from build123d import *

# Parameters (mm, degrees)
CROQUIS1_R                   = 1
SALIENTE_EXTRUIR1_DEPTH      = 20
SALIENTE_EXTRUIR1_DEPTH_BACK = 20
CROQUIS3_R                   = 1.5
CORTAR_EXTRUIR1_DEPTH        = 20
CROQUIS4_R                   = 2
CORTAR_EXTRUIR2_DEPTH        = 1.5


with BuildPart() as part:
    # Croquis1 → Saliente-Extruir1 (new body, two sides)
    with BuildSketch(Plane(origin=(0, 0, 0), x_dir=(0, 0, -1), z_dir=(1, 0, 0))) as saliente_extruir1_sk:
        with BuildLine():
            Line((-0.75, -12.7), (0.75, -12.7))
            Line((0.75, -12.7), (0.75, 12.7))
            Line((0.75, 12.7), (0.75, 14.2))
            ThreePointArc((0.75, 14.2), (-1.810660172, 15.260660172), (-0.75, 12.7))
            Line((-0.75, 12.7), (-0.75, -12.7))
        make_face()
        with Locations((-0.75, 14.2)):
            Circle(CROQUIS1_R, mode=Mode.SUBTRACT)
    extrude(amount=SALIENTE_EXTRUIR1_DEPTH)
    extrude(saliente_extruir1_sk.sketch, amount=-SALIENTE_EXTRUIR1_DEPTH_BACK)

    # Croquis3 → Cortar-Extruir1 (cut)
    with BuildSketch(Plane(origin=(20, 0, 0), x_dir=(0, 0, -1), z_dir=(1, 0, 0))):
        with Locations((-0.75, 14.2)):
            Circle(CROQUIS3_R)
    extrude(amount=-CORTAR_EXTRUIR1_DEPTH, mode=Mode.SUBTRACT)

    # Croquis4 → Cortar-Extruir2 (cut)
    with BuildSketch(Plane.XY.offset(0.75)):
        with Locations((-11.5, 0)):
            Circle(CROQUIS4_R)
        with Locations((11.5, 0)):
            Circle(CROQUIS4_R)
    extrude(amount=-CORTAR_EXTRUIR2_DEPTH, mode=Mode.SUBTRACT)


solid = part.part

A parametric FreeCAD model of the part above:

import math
import FreeCAD as App
import Part
import Sketcher

V = App.Vector
Q = App.Units.Quantity

doc = App.newDocument("Part")
body = doc.addObject("PartDesign::Body", "Body")

# Sketch on YZ plane
sketch1 = doc.addObject("Sketcher::SketchObject", "Sketch")
body.addObject(sketch1)
sketch1.AttachmentSupport = (doc.YZ_Plane, [""])
sketch1.MapMode = "FlatFace"
sketch1.addGeometry([
    Part.LineSegment(V(-12.7, 0.75, 0), V(-12.7, -0.75, 0)),  # 0
    Part.LineSegment(V(-12.7, -0.75, 0), V(14.2, -0.75, 0)),  # 1
    Part.ArcOfCircle(Part.Circle(V(14.2, 0.75, 0), V(0, 0, 1), 1.5), math.radians(-90), math.radians(180)),  # 2
    Part.LineSegment(V(12.7, 0.75, 0), V(-12.7, 0.75, 0)),  # 3
    Part.Circle(V(14.2, 0.75, 0), V(0, 0, 1), 1),  # 4
], False)
sketch1.addConstraint([
    Sketcher.Constraint("Coincident", 0, 2, 1, 1),
    Sketcher.Constraint("Tangent", 1, 2, 2, 1),
    Sketcher.Constraint("Coincident", 2, 2, 3, 1),
    Sketcher.Constraint("Coincident", 3, 2, 0, 1),
    Sketcher.Constraint("Vertical", 0),
    Sketcher.Constraint("Horizontal", 1),
    Sketcher.Constraint("Horizontal", 3),
    Sketcher.Constraint("Coincident", 4, 3, 2, 3),
    Sketcher.Constraint("Symmetric", 0, 2, 2, 2, -1, 1),
    Sketcher.Constraint("Horizontal", 4, 3, 2, 2),
    Sketcher.Constraint("Diameter", 4, Q("2 mm")),
    Sketcher.Constraint("Radius", 2, Q("1.5 mm")),
    Sketcher.Constraint("DistanceX", 1, 1, 1, 2, Q("26.9 mm")),
])
pad1 = doc.addObject("PartDesign::Pad", "Pad")
body.addObject(pad1)
pad1.Profile = sketch1
pad1.Type = "TwoLengths"
pad1.Length = 20
pad1.Length2 = 20

# Sketch on YZ plane
sketch2 = doc.addObject("Sketcher::SketchObject", "Sketch001")
body.addObject(sketch2)
sketch2.AttachmentSupport = (doc.YZ_Plane, [""])
sketch2.MapMode = "FlatFace"
sketch2.AttachmentOffset = App.Placement(V(0, 0, 20), App.Rotation())
sketch2.addGeometry(Part.Circle(V(14.2, 0.75, 0), V(0, 0, 1), 1.5), False)
sketch2.addConstraint([
    Sketcher.Constraint("Diameter", 0, Q("3 mm")),
    Sketcher.Constraint("DistanceX", -1, 1, 0, 3, Q("14.2 mm")),
    Sketcher.Constraint("DistanceY", -1, 1, 0, 3, Q("0.75 mm")),
])
pocket1 = doc.addObject("PartDesign::Pocket", "Pocket")
body.addObject(pocket1)
pocket1.Profile = sketch2
pocket1.Length = 20

# Sketch on XY plane
sketch3 = doc.addObject("Sketcher::SketchObject", "Sketch002")
body.addObject(sketch3)
sketch3.AttachmentSupport = (doc.XY_Plane, [""])
sketch3.MapMode = "FlatFace"
sketch3.AttachmentOffset = App.Placement(V(0, 0, 0.75), App.Rotation())
sketch3.addGeometry([
    Part.Circle(V(-11.5, 0, 0), V(0, 0, 1), 2),
    Part.Circle(V(11.5, 0, 0), V(0, 0, 1), 2),
], False)
sketch3.addConstraint([
    Sketcher.Constraint("Equal", 0, 1),
    Sketcher.Constraint("Symmetric", 0, 3, 1, 3, -1, 1),
    Sketcher.Constraint("PointOnObject", 0, 3, -1),
    Sketcher.Constraint("Diameter", 0, Q("4 mm")),
    Sketcher.Constraint("DistanceX", 0, 3, 1, 3, Q("23 mm")),
])
pocket2 = doc.addObject("PartDesign::Pocket", "Pocket001")
body.addObject(pocket2)
pocket2.Profile = sketch3
pocket2.Length = 1.5

doc.recompute()
